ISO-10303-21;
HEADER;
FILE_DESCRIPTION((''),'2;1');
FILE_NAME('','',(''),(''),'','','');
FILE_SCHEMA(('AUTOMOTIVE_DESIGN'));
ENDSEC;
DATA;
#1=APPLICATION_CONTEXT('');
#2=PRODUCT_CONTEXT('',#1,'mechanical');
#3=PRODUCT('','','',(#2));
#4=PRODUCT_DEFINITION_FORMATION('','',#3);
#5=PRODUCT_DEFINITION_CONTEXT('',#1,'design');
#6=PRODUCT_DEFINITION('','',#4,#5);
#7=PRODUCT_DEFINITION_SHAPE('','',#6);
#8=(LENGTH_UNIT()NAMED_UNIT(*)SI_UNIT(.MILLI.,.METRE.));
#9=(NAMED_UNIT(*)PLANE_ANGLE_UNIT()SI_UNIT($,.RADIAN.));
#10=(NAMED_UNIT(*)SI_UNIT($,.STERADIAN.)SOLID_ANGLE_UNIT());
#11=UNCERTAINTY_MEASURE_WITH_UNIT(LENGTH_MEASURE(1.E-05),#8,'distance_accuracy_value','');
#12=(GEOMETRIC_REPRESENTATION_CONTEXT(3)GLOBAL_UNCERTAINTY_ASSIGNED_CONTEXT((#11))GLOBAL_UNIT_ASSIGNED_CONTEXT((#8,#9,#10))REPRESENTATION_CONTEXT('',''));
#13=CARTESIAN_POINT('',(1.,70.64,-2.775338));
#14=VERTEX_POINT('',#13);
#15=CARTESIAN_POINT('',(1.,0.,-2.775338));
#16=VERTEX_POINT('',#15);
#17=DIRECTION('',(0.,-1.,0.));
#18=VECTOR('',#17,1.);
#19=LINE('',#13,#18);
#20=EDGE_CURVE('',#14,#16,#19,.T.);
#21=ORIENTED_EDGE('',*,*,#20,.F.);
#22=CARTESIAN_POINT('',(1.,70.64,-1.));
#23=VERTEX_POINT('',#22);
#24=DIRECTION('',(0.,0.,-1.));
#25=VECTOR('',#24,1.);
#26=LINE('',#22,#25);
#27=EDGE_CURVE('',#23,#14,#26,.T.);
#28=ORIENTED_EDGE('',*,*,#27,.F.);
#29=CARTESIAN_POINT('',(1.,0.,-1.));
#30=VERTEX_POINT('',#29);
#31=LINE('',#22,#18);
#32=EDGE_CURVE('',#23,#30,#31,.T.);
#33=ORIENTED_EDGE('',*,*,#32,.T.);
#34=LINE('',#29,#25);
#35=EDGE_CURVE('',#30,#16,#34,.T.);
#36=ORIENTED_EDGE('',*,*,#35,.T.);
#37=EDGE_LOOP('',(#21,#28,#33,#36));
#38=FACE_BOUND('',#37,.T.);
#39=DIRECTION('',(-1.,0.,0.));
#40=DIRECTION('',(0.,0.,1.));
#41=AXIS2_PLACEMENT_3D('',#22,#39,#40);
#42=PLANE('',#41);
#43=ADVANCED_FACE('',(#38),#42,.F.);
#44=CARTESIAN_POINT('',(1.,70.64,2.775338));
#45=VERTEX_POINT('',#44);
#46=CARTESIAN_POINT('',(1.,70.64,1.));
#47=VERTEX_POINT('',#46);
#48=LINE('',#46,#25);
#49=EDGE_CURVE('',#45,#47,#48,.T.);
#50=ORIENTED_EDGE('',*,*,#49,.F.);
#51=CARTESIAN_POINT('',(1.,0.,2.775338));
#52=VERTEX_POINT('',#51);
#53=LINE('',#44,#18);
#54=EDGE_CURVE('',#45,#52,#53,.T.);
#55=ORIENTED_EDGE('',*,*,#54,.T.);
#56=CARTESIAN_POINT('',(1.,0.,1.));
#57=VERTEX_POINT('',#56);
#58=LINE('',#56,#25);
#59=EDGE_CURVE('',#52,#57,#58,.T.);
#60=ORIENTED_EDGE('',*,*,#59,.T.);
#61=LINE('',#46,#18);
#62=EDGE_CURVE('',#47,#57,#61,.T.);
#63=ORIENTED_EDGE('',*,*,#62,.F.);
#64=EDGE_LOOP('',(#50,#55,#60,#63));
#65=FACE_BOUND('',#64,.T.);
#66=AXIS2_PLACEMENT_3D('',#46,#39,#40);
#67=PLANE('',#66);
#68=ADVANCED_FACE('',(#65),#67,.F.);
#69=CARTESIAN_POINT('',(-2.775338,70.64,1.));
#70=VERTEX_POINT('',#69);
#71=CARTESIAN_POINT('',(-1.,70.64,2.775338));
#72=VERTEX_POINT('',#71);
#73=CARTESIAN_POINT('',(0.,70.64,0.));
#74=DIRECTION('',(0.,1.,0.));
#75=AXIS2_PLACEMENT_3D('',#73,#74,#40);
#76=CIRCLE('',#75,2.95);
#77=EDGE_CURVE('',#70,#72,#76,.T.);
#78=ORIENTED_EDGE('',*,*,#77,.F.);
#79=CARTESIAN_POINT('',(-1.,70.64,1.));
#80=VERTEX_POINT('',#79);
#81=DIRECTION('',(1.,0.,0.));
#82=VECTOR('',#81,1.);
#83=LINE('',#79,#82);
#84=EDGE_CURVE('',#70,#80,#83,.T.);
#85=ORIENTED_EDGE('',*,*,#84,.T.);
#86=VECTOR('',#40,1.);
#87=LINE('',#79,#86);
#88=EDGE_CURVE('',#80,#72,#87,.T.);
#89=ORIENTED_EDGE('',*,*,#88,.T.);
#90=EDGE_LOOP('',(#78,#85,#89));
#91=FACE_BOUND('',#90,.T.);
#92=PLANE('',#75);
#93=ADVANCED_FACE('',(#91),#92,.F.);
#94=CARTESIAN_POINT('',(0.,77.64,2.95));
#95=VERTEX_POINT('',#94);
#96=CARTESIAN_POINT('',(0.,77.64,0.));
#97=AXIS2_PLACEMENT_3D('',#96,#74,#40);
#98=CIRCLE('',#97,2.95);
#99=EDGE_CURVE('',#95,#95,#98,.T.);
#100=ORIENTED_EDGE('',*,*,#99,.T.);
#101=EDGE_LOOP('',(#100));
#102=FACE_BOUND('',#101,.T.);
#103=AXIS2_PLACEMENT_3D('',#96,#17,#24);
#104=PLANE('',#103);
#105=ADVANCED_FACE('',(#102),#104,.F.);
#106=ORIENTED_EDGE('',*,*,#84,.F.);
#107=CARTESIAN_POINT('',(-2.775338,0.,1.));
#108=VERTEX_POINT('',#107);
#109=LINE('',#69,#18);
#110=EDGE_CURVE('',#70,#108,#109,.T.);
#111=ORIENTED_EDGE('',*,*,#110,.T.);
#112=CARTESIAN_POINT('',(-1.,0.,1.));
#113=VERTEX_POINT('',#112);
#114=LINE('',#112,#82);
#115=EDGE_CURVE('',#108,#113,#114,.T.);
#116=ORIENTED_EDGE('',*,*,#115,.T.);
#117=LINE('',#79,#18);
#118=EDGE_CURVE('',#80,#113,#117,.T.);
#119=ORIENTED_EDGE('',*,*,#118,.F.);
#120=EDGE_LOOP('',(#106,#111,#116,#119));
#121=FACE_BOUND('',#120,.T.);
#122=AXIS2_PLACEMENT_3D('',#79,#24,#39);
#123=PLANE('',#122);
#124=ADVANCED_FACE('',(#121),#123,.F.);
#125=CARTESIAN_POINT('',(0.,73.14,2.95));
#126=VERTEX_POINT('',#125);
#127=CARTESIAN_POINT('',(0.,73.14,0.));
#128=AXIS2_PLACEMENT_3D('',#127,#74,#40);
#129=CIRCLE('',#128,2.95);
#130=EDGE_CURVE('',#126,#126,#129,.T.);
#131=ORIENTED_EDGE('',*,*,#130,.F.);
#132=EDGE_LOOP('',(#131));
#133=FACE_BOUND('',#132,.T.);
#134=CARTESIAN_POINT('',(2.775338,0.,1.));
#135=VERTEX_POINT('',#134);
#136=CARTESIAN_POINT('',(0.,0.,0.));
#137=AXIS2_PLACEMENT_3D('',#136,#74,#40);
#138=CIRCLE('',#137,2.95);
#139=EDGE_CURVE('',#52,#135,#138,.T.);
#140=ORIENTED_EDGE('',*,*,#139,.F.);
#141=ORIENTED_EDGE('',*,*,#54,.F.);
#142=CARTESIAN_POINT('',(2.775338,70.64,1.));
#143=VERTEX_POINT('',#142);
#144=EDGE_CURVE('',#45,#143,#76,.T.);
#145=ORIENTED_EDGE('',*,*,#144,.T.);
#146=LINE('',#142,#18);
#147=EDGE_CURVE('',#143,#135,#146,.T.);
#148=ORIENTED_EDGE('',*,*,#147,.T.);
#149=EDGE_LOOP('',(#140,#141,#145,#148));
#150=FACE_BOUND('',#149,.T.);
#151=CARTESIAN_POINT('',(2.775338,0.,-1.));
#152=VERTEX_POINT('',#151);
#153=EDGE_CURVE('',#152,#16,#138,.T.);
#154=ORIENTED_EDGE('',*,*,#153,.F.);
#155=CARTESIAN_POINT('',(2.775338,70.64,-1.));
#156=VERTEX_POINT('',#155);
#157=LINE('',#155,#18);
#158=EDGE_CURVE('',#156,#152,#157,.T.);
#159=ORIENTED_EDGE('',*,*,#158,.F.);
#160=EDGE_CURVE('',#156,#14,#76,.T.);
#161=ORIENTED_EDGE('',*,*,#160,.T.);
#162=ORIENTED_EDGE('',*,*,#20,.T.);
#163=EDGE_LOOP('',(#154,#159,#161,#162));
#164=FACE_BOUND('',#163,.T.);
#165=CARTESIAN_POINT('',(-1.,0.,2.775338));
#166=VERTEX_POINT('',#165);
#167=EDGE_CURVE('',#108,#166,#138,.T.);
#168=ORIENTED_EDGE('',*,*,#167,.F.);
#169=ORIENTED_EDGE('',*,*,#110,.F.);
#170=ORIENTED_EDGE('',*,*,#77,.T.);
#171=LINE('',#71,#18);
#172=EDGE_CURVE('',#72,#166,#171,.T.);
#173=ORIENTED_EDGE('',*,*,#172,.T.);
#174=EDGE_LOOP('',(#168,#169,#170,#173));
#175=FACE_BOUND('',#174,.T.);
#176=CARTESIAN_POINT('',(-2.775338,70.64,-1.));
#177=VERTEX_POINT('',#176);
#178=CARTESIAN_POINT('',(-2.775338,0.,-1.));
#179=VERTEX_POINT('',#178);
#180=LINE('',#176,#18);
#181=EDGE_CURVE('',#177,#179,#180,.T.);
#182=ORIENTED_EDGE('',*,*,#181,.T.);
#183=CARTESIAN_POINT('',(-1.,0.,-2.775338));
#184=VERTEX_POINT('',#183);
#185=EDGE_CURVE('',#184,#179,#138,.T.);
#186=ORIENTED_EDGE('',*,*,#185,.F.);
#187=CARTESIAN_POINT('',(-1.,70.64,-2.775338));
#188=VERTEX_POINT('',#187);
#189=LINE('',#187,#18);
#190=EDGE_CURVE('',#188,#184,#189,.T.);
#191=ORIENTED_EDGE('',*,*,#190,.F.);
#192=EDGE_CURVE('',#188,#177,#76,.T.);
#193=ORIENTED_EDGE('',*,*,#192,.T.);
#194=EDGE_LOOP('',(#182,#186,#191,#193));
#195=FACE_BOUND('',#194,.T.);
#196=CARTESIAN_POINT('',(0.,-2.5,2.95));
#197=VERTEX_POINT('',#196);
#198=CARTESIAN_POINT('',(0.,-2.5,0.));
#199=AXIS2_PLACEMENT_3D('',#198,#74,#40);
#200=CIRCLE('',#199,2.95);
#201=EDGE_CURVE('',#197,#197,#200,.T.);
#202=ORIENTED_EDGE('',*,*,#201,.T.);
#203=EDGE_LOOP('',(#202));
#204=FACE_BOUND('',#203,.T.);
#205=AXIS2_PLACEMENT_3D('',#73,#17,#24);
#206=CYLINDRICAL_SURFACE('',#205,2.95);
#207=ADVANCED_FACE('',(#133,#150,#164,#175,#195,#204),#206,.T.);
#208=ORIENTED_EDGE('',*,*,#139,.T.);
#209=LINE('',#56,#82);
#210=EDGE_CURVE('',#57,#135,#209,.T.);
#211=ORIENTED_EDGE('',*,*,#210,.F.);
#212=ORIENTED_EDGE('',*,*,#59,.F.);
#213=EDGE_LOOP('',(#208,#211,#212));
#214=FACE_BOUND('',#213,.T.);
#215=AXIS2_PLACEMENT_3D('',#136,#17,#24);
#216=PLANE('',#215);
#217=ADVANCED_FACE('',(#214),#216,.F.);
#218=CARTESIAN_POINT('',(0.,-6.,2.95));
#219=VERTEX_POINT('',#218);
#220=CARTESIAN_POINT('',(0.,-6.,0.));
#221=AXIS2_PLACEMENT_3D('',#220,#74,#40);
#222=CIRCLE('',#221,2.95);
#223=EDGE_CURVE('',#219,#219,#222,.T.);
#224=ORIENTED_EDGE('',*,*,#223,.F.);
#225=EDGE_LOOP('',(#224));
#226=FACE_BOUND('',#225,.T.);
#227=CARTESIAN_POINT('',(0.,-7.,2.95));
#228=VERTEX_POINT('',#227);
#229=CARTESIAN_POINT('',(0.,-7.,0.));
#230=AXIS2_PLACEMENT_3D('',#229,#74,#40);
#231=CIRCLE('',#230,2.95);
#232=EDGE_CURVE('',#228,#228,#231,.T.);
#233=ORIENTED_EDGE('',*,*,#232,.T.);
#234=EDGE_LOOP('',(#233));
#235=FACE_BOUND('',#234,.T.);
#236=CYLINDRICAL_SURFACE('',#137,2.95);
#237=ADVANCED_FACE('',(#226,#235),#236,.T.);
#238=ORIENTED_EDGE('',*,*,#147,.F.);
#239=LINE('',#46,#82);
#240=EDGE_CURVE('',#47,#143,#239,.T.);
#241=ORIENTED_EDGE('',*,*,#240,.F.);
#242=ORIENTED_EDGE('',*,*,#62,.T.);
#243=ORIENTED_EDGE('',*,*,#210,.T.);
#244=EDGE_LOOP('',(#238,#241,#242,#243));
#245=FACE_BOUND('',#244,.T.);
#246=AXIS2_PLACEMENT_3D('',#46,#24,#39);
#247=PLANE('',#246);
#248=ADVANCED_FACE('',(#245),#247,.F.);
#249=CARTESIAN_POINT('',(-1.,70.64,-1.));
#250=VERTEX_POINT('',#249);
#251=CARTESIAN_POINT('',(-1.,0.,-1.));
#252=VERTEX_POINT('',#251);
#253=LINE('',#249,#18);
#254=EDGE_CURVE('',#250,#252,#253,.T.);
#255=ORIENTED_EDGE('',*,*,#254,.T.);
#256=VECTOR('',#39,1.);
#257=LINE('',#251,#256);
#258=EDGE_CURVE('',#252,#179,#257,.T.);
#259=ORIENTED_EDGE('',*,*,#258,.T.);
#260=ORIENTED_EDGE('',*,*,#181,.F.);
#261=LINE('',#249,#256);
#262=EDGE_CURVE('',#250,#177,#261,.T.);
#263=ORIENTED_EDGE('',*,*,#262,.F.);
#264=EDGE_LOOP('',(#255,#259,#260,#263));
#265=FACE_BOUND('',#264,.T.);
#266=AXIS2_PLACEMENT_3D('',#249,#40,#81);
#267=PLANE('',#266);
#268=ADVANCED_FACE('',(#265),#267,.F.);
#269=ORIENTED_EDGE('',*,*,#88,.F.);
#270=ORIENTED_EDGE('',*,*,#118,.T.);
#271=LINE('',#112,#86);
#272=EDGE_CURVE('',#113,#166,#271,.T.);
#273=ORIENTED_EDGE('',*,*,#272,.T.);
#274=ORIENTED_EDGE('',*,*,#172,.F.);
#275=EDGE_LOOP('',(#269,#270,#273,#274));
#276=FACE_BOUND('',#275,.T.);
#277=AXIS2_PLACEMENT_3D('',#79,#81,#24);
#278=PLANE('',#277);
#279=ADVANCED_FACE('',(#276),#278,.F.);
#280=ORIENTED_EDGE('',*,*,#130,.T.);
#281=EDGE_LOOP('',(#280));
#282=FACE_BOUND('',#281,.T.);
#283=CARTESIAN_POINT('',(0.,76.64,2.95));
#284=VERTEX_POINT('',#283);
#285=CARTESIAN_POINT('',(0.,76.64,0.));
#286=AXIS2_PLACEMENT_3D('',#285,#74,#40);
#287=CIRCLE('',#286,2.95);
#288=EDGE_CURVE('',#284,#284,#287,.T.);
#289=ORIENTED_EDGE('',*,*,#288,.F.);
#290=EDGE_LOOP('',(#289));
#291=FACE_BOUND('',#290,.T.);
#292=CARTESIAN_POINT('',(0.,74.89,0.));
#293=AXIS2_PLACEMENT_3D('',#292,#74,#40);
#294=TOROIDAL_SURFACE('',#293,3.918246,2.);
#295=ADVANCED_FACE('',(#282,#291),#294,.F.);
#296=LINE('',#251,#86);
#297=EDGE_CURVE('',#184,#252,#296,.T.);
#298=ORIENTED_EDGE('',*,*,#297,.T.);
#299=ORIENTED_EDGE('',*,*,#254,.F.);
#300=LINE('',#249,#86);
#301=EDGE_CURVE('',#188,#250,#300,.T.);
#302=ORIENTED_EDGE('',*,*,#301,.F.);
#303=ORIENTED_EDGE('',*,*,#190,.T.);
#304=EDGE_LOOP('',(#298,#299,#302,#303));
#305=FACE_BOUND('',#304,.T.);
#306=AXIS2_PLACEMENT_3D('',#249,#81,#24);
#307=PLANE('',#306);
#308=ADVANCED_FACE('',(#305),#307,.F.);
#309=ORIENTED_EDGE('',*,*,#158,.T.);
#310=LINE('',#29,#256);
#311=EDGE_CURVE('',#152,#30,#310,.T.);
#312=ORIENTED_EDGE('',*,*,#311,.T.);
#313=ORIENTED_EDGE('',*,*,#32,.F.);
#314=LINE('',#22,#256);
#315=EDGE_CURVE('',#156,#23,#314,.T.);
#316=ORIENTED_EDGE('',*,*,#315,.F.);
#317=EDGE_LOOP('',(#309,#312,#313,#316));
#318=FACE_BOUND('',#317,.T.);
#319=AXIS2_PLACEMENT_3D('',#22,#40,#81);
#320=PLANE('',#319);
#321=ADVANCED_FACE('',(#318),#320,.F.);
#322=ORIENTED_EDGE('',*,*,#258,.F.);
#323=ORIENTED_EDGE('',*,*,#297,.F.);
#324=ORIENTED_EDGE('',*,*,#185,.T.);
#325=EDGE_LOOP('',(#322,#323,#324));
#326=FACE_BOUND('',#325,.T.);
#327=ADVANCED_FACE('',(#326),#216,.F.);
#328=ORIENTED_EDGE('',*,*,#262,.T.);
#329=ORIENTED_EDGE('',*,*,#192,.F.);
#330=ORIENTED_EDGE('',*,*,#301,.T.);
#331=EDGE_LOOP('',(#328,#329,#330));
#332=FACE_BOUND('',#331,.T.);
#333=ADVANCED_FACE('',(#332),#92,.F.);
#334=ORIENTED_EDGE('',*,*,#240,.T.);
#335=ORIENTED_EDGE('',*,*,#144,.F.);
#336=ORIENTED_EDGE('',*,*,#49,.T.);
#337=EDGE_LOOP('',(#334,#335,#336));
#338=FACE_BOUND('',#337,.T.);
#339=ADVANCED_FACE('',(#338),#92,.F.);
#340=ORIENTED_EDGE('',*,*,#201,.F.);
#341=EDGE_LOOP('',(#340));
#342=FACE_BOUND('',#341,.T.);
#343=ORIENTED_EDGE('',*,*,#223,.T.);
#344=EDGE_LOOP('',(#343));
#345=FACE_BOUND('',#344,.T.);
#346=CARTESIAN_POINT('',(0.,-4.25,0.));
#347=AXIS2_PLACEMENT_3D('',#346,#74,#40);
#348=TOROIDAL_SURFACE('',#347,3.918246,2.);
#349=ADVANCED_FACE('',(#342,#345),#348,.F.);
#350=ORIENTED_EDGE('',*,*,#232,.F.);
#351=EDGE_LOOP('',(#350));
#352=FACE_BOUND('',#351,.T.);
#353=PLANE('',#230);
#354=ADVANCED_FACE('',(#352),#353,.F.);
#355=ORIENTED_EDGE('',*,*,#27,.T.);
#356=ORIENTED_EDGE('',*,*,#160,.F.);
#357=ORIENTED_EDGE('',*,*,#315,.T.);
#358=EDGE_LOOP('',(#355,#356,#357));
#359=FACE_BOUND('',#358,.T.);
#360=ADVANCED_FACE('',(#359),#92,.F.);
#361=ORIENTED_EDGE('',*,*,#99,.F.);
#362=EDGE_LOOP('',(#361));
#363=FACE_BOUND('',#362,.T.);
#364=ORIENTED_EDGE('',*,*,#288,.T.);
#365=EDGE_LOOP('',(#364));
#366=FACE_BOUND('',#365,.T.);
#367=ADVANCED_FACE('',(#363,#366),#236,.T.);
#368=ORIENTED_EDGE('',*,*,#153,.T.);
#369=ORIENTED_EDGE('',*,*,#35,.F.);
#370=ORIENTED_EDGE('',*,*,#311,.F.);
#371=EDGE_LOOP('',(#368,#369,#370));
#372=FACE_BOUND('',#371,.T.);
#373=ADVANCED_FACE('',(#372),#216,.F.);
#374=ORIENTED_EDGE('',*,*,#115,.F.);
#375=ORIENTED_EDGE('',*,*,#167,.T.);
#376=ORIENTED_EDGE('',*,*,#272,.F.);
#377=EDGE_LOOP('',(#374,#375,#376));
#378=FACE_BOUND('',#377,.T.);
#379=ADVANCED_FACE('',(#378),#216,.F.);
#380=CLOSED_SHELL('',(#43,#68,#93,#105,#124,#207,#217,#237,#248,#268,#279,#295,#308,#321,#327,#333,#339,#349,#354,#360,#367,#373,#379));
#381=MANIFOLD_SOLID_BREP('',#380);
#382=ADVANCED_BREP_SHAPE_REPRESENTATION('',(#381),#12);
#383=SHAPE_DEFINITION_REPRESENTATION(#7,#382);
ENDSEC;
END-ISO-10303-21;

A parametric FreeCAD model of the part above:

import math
import FreeCAD as App
import Part
import Sketcher
from FreeCAD import Vector
Q = App.Units.Quantity

doc = App.newDocument("Part")
body = doc.addObject("PartDesign::Body", "Body")

sketch1 = body.newObject("Sketcher::SketchObject", "Sketch")
sketch1.AttachmentSupport = (doc.getObject("XZ_Plane"), [""])
sketch1.MapMode = "FlatFace"
sketch1.addGeometry(Part.LineSegment(Vector(1, -1, 0), Vector(1, -2.775338, 0)), False)
sketch1.addGeometry(Part.ArcOfCircle(Part.Circle(Vector(0, 0.000003, 0), Vector(0, 0, 1), 2.950003), math.radians(-109.814908), math.radians(-70.185092)), False)
sketch1.addGeometry(Part.LineSegment(Vector(-1, -2.775338, 0), Vector(-1, -1, 0)), False)
sketch1.addGeometry(Part.LineSegment(Vector(-1, -1, 0), Vector(-2.775338, -1, 0)), False)
sketch1.addGeometry(Part.ArcOfCircle(Part.Circle(Vector(0.000003, 0, 0), Vector(0, 0, 1), 2.950003), math.radians(160.185092), math.radians(199.814908)), False)
sketch1.addGeometry(Part.LineSegment(Vector(-2.775338, 1, 0), Vector(-1, 1, 0)), False)
sketch1.addGeometry(Part.LineSegment(Vector(-1, 1, 0), Vector(-1, 2.775338, 0)), False)
sketch1.addGeometry(Part.ArcOfCircle(Part.Circle(Vector(0, -0.000003, 0), Vector(0, 0, 1), 2.950003), math.radians(70.185092), math.radians(109.814908)), False)
sketch1.addGeometry(Part.LineSegment(Vector(1, 2.775338, 0), Vector(1, 1, 0)), False)
sketch1.addGeometry(Part.LineSegment(Vector(1, 1, 0), Vector(2.775338, 1, 0)), False)
sketch1.addGeometry(Part.ArcOfCircle(Part.Circle(Vector(-0.000003, 0, 0), Vector(0, 0, 1), 2.950003), math.radians(-19.814908), math.radians(19.814908)), False)
sketch1.addGeometry(Part.LineSegment(Vector(2.775338, -1, 0), Vector(1, -1, 0)), False)
sketch1.addConstraint(Sketcher.Constraint("Coincident", 0, 2, 1, 2))
sketch1.addConstraint(Sketcher.Constraint("Coincident", 1, 1, 2, 1))
sketch1.addConstraint(Sketcher.Constraint("Coincident", 2, 2, 3, 1))
sketch1.addConstraint(Sketcher.Constraint("Coincident", 3, 2, 4, 2))
sketch1.addConstraint(Sketcher.Constraint("Coincident", 4, 1, 5, 1))
sketch1.addConstraint(Sketcher.Constraint("Coincident", 5, 2, 6, 1))
sketch1.addConstraint(Sketcher.Constraint("Coincident", 6, 2, 7, 2))
sketch1.addConstraint(Sketcher.Constraint("Coincident", 7, 1, 8, 1))
sketch1.addConstraint(Sketcher.Constraint("Coincident", 8, 2, 9, 1))
sketch1.addConstraint(Sketcher.Constraint("Coincident", 9, 2, 10, 2))
sketch1.addConstraint(Sketcher.Constraint("Coincident", 10, 1, 11, 1))
sketch1.addConstraint(Sketcher.Constraint("Coincident", 11, 2, 0, 1))
sketch1.addConstraint(Sketcher.Constraint("Vertical", 0))
sketch1.addConstraint(Sketcher.Constraint("Vertical", 2))
sketch1.addConstraint(Sketcher.Constraint("Horizontal", 3))
sketch1.addConstraint(Sketcher.Constraint("Horizontal", 5))
sketch1.addConstraint(Sketcher.Constraint("Vertical", 6))
sketch1.addConstraint(Sketcher.Constraint("Vertical", 8))
sketch1.addConstraint(Sketcher.Constraint("Horizontal", 9))
sketch1.addConstraint(Sketcher.Constraint("Horizontal", 11))
sketch1.addConstraint(Sketcher.Constraint("Coincident", 1, 3, -1, 1))
sketch1.addConstraint(Sketcher.Constraint("Coincident", 4, 3, -1, 1))
sketch1.addConstraint(Sketcher.Constraint("Coincident", 7, 3, -1, 1))
sketch1.addConstraint(Sketcher.Constraint("Coincident", 10, 3, -1, 1))
sketch1.addConstraint(Sketcher.Constraint("Equal", 1, 4))
sketch1.addConstraint(Sketcher.Constraint("Equal", 4, 7))
sketch1.addConstraint(Sketcher.Constraint("Equal", 7, 10))
sketch1.addConstraint(Sketcher.Constraint("Symmetric", 2, 2, 8, 2, -1, 1))
sketch1.addConstraint(Sketcher.Constraint("Symmetric", 5, 2, 11, 2, -1, 1))
sketch1.addConstraint(Sketcher.Constraint("Symmetric", 5, 2, 8, 2, -2))
sketch1.addConstraint(Sketcher.Constraint("Equal", 11, 0))
sketch1.addConstraint(Sketcher.Constraint("DistanceX", -1, 1, 0, 2, Q("1 mm")))
sketch1.addConstraint(Sketcher.Constraint("Radius", 1, Q("2.950003 mm")))
pad1 = body.newObject("PartDesign::Pad", "Pad")
pad1.Profile = sketch1
pad1.Length = 70.64
pad1.Reversed = True

sketch2 = body.newObject("Sketcher::SketchObject", "Sketch001")
sketch2.AttachmentSupport = (doc.getObject("YZ_Plane"), [""])
sketch2.MapMode = "FlatFace"
sketch2.addGeometry(Part.LineSegment(Vector(77.64, 0, 0), Vector(70.64, 0, 0)), False)
sketch2.addGeometry(Part.LineSegment(Vector(70.64, 0, 0), Vector(70.64, -2.95, 0)), False)
sketch2.addGeometry(Part.LineSegment(Vector(70.64, -2.95, 0), Vector(73.14, -2.95, 0)), False)
sketch2.addGeometry(Part.ArcOfCircle(Part.Circle(Vector(74.89, -3.918246, 0), Vector(0, 0, 1), 2), math.radians(28.955032), math.radians(151.044968)), False)
sketch2.addGeometry(Part.LineSegment(Vector(76.64, -2.95, 0), Vector(77.64, -2.95, 0)), False)
sketch2.addGeometry(Part.LineSegment(Vector(77.64, -2.95, 0), Vector(77.64, 0, 0)), False)
sketch2.addGeometry(Part.LineSegment(Vector(0, 0, 0), Vector(-7, 0, 0)), False)
sketch2.addGeometry(Part.LineSegment(Vector(-7, 0, 0), Vector(-7, -2.95, 0)), False)
sketch2.addGeometry(Part.LineSegment(Vector(-7, -2.95, 0), Vector(-6, -2.95, 0)), False)
sketch2.addGeometry(Part.ArcOfCircle(Part.Circle(Vector(-4.25, -3.918246, 0), Vector(0, 0, 1), 2), math.radians(28.955032), math.radians(151.044968)), False)
sketch2.addGeometry(Part.LineSegment(Vector(-2.5, -2.95, 0), Vector(0, -2.95, 0)), False)
sketch2.addGeometry(Part.LineSegment(Vector(0, -2.95, 0), Vector(0, 0, 0)), False)
sketch2.addConstraint(Sketcher.Constraint("Coincident", 0, 2, 1, 1))
sketch2.addConstraint(Sketcher.Constraint("Coincident", 1, 2, 2, 1))
sketch2.addConstraint(Sketcher.Constraint("Coincident", 2, 2, 3, 2))
sketch2.addConstraint(Sketcher.Constraint("Coincident", 3, 1, 4, 1))
sketch2.addConstraint(Sketcher.Constraint("Coincident", 4, 2, 5, 1))
sketch2.addConstraint(Sketcher.Constraint("Coincident", 5, 2, 0, 1))
sketch2.addConstraint(Sketcher.Constraint("Coincident", 6, 2, 7, 1))
sketch2.addConstraint(Sketcher.Constraint("Coincident", 7, 2, 8, 1))
sketch2.addConstraint(Sketcher.Constraint("Coincident", 8, 2, 9, 2))
sketch2.addConstraint(Sketcher.Constraint("Coincident", 9, 1, 10, 1))
sketch2.addConstraint(Sketcher.Constraint("Coincident", 10, 2, 11, 1))
sketch2.addConstraint(Sketcher.Constraint("Coincident", 11, 2, 6, 1))
sketch2.addConstraint(Sketcher.Constraint("Horizontal", 0))
sketch2.addConstraint(Sketcher.Constraint("Vertical", 1))
sketch2.addConstraint(Sketcher.Constraint("Horizontal", 2))
sketch2.addConstraint(Sketcher.Constraint("Horizontal", 4))
sketch2.addConstraint(Sketcher.Constraint("Vertical", 5))
sketch2.addConstraint(Sketcher.Constraint("Horizontal", 6))
sketch2.addConstraint(Sketcher.Constraint("Vertical", 7))
sketch2.addConstraint(Sketcher.Constraint("Horizontal", 8))
sketch2.addConstraint(Sketcher.Constraint("Horizontal", 10))
sketch2.addConstraint(Sketcher.Constraint("Vertical", 11))
sketch2.addConstraint(Sketcher.Constraint("Coincident", 11, 2, -1, 1))
sketch2.addConstraint(Sketcher.Constraint("Equal", 3, 9))
sketch2.addConstraint(Sketcher.Constraint("PointOnObject", 0, 2, -1))
sketch2.addConstraint(Sketcher.Constraint("Horizontal", 3, 3, 9, 3))
sketch2.addConstraint(Sketcher.Constraint("Horizontal", 2, 2, 3, 1))
sketch2.addConstraint(Sketcher.Constraint("Horizontal", 4, 2, 7, 2))
sketch2.addConstraint(Sketcher.Constraint("Horizontal", 8, 2, 9, 1))
sketch2.addConstraint(Sketcher.Constraint("Equal", 0, 6))
sketch2.addConstraint(Sketcher.Constraint("Equal", 4, 8))
sketch2.addConstraint(Sketcher.Constraint("Radius", 3, Q("2 mm")))
sketch2.addConstraint(Sketcher.Constraint("DistanceX", 0, 2, 0, 1, Q("7 mm")))
sketch2.addConstraint(Sketcher.Constraint("DistanceX", 4, 1, 4, 2, Q("1 mm")))
sketch2.addConstraint(Sketcher.Constraint("DistanceX", 2, 1, 2, 2, Q("2.5 mm")))
sketch2.addConstraint(Sketcher.Constraint("DistanceY", 1, 2, 1, 1, Q("2.95 mm")))
sketch2.addConstraint(Sketcher.Constraint("DistanceX", -1, 1, 3, 3, Q("74.89 mm")))
revolution = body.newObject("PartDesign::Revolution", "Revolution")
revolution.Profile = sketch2
revolution.ReferenceAxis = (sketch2, ["H_Axis"])
revolution.Angle = 360

doc.recompute()
